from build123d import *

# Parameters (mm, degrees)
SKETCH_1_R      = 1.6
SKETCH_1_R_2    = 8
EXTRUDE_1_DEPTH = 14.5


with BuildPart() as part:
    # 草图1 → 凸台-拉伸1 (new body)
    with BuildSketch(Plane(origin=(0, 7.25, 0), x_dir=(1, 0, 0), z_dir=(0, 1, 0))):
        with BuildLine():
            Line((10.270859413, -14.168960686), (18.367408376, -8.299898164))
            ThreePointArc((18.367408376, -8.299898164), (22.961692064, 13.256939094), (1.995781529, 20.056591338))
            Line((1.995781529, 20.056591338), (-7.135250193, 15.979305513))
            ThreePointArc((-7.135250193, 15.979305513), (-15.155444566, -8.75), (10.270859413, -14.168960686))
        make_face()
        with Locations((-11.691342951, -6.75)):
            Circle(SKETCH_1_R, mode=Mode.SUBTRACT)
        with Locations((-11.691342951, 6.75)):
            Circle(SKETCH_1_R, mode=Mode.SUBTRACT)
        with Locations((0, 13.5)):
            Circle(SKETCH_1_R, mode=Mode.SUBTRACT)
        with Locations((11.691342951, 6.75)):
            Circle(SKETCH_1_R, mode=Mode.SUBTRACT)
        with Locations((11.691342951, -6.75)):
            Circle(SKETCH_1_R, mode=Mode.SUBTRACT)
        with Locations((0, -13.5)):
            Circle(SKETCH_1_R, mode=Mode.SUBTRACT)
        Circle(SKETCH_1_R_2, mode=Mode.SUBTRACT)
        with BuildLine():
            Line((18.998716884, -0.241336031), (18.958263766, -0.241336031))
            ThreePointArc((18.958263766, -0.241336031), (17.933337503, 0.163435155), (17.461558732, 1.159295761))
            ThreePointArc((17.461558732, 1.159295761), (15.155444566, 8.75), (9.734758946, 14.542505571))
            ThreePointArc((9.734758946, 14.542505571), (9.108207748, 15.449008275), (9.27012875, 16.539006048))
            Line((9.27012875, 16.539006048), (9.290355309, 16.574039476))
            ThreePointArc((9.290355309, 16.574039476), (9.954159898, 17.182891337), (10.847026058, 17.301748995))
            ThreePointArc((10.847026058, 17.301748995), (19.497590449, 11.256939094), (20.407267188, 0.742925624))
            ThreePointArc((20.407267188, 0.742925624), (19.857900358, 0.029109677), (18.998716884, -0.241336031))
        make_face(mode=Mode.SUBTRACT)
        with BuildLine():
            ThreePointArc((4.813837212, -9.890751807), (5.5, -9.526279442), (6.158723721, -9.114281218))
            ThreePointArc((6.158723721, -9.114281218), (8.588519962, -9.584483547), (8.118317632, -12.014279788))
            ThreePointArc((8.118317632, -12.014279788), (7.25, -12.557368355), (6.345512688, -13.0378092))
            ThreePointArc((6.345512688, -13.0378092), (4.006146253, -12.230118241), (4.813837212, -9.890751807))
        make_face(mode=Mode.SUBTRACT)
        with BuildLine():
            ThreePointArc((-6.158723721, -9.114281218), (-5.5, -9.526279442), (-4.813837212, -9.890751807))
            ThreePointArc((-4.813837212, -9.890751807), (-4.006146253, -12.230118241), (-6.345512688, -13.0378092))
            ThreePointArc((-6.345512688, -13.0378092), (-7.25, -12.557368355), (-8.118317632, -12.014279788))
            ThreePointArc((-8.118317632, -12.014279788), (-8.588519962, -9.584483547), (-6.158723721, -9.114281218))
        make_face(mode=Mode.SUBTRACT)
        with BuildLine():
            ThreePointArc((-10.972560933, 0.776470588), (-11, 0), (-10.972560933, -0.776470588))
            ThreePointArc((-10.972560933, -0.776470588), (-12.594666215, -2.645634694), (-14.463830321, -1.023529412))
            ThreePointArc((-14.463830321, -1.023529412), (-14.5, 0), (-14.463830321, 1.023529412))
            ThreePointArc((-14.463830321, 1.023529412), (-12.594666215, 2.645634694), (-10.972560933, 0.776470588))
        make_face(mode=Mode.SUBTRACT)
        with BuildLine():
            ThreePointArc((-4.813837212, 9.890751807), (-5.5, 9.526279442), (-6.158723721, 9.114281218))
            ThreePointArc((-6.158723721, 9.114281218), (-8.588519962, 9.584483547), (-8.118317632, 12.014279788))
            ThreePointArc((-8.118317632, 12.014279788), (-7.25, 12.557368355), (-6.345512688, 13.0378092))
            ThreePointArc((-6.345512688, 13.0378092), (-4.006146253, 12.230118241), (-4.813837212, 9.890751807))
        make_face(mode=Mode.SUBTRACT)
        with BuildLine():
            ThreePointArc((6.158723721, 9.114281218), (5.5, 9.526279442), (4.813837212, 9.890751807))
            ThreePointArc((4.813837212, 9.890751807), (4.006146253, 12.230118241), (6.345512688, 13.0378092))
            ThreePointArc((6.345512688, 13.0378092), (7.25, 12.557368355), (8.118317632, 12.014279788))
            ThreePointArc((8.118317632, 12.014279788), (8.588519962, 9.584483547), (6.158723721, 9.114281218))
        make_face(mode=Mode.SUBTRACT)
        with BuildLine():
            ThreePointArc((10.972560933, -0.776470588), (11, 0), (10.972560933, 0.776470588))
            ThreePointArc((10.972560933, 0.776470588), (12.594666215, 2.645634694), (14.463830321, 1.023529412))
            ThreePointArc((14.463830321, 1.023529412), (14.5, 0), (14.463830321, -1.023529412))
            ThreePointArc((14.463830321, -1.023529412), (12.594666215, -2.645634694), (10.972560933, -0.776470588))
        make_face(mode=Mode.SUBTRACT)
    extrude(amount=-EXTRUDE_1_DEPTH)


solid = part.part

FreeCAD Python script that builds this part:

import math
import FreeCAD as App
import Part
import Sketcher
from FreeCAD import Vector
Q = App.Units.Quantity

doc = App.newDocument("Part")
params = doc.addObject("Spreadsheet::Sheet", "Params")
for row, (alias, value) in enumerate([
    ("sketch1_diameter", "16 mm"),
    ("sketch1_radius", "11 mm"),
    ("sketch1_diameter2", "3.2 mm"),
    ("sketch1_radius2", "17.5 mm"),
    ("sketch1_radius3", "14.5 mm"),
    ("pad1_length", "14.5 mm"),
], start=1):
    params.set(f"A{row}", alias)
    params.set(f"B{row}", "=" + value)
    params.setAlias(f"B{row}", alias)

body = doc.addObject("PartDesign::Body", "Body")

sketch1 = body.newObject("Sketcher::SketchObject", "Sketch")
sketch1.AttachmentSupport = (doc.getObject("XZ_Plane"), [""])
sketch1.MapMode = "FlatFace"
sketch1.AttachmentOffset = App.Placement(Vector(0, 0, -7.25), App.Rotation())
sketch1.addGeometry(Part.LineSegment(Vector(10.271, 14.169, 0), Vector(18.367, 8.3, 0)), False)
sketch1.addGeometry(Part.ArcOfCircle(Part.Circle(Vector(8.707, -5.027, 0), Vector(0, 0, 1), 16.46), math.radians(-114), math.radians(54)), False)
sketch1.addGeometry(Part.LineSegment(Vector(1.996, -20.057, 0), Vector(-7.135, -15.979, 0)), False)
sketch1.addGeometry(Part.ArcOfCircle(Part.Circle(Vector(0, 0, 0), Vector(0, 0, 1), 17.5), math.radians(54), math.radians(246)), False)
sketch1.addGeometry(Part.ArcOfCircle(Part.Circle(Vector(-7.139, 10.564, 0), Vector(0, 0, 1), 1.75), math.radians(124), math.radians(304)), False)
sketch1.addGeometry(Part.ArcOfCircle(Part.Circle(Vector(0, 0, 0), Vector(0, 0, 1), 11), math.radians(115.95), math.radians(124.05)), False)
sketch1.addGeometry(Part.ArcOfCircle(Part.Circle(Vector(-5.58, 11.464, 0), Vector(0, 0, 1), 1.75), math.radians(-64), math.radians(116)), False)
sketch1.addGeometry(Part.ArcOfCircle(Part.Circle(Vector(0, 0, 0), Vector(0, 0, 1), 14.5), math.radians(115.95), math.radians(124.05)), False)
sketch1.addGeometry(Part.Circle(Vector(0, 13.5, 0), Vector(0, 0, 1), 1.6), False)
sketch1.addGeometry(Part.Circle(Vector(-11.691, 6.75, 0), Vector(0, 0, 1), 1.6), False)
sketch1.addGeometry(Part.ArcOfCircle(Part.Circle(Vector(-12.718, -0.9, 0), Vector(0, 0, 1), 1.75), math.radians(-176), math.radians(4)), False)
sketch1.addGeometry(Part.ArcOfCircle(Part.Circle(Vector(0, 0, 0), Vector(0, 0, 1), 11), math.radians(175.95), math.radians(184.05)), False)
sketch1.addGeometry(Part.ArcOfCircle(Part.Circle(Vector(-12.718, 0.9, 0), Vector(0, 0, 1), 1.75), math.radians(-4), math.radians(176)), False)
sketch1.addGeometry(Part.ArcOfCircle(Part.Circle(Vector(0, 0, 0), Vector(0, 0, 1), 14.5), math.radians(175.95), math.radians(184.05)), False)
sketch1.addGeometry(Part.Circle(Vector(0, 0, 0), Vector(0, 0, 1), 8), False)
sketch1.addGeometry(Part.ArcOfCircle(Part.Circle(Vector(5.58, 11.464, 0), Vector(0, 0, 1), 1.75), math.radians(64), math.radians(244)), False)
sketch1.addGeometry(Part.ArcOfCircle(Part.Circle(Vector(0, 0, 0), Vector(0, 0, 1), 11), math.radians(55.95), math.radians(64.05)), False)
sketch1.addGeometry(Part.ArcOfCircle(Part.Circle(Vector(7.139, 10.564, 0), Vector(0, 0, 1), 1.75), math.radians(-124), math.radians(56)), False)
sketch1.addGeometry(Part.ArcOfCircle(Part.Circle(Vector(0, 0, 0), Vector(0, 0, 1), 14.5), math.radians(55.95), math.radians(64.05)), False)
sketch1.addGeometry(Part.Circle(Vector(11.691, 6.75, 0), Vector(0, 0, 1), 1.6), False)
sketch1.addGeometry(Part.ArcOfCircle(Part.Circle(Vector(12.718, 0.9, 0), Vector(0, 0, 1), 1.75), math.radians(4), math.radians(184)), False)
sketch1.addGeometry(Part.ArcOfCircle(Part.Circle(Vector(0, 0, 0), Vector(0, 0, 1), 11), math.radians(-4.05), math.radians(4.05)), False)
sketch1.addGeometry(Part.ArcOfCircle(Part.Circle(Vector(12.718, -0.9, 0), Vector(0, 0, 1), 1.75), math.radians(176), math.radians(356)), False)
sketch1.addGeometry(Part.ArcOfCircle(Part.Circle(Vector(0, 0, 0), Vector(0, 0, 1), 14.5), math.radians(-4.05), math.radians(4.05)), False)
sketch1.addGeometry(Part.Circle(Vector(-11.691, -6.75, 0), Vector(0, 0, 1), 1.6), False)
sketch1.addGeometry(Part.ArcOfCircle(Part.Circle(Vector(-5.58, -11.464, 0), Vector(0, 0, 1), 1.75), math.radians(-116), math.radians(64)), False)
sketch1.addGeometry(Part.ArcOfCircle(Part.Circle(Vector(0, 0, 0), Vector(0, 0, 1), 11), math.radians(-124.05), math.radians(-115.95)), False)
sketch1.addGeometry(Part.ArcOfCircle(Part.Circle(Vector(-7.139, -10.564, 0), Vector(0, 0, 1), 1.75), math.radians(56), math.radians(236)), False)
sketch1.addGeometry(Part.ArcOfCircle(Part.Circle(Vector(0, 0, 0), Vector(0, 0, 1), 14.5), math.radians(-124.05), math.radians(-115.95)), False)
sketch1.addGeometry(Part.Circle(Vector(0, -13.5, 0), Vector(0, 0, 1), 1.6), False)
sketch1.addGeometry(Part.Circle(Vector(11.691, -6.75, 0), Vector(0, 0, 1), 1.6), False)
sketch1.addGeometry(Part.ArcOfCircle(Part.Circle(Vector(18.999, -1.259, 0), Vector(0, 0, 1), 1.5), math.radians(20), math.radians(90)), False)
sketch1.addGeometry(Part.LineSegment(Vector(18.999, 0.241, 0), Vector(18.958, 0.241, 0)), False)
sketch1.addGeometry(Part.ArcOfCircle(Part.Circle(Vector(18.958, -1.259, 0), Vector(0, 0, 1), 1.5), math.radians(90), math.radians(176)), False)
sketch1.addGeometry(Part.ArcOfCircle(Part.Circle(Vector(0, 0, 0), Vector(0, 0, 1), 17.5), math.radians(-56), math.radians(-4)), False)
sketch1.addGeometry(Part.ArcOfCircle(Part.Circle(Vector(10.569, -15.789, 0), Vector(0, 0, 1), 1.5), math.radians(124), math.radians(210)), False)
sketch1.addGeometry(Part.LineSegment(Vector(9.27, -16.539, 0), Vector(9.29, -16.574, 0)), False)
sketch1.addGeometry(Part.ArcOfCircle(Part.Circle(Vector(10.589, -15.824, 0), Vector(0, 0, 1), 1.5), math.radians(-150), math.radians(-80)), False)
sketch1.addGeometry(Part.ArcOfCircle(Part.Circle(Vector(8.707, -5.027, 0), Vector(0, 0, 1), 12.46), math.radians(-80), math.radians(20)), False)
sketch1.addGeometry(Part.ArcOfCircle(Part.Circle(Vector(7.139, -10.564, 0), Vector(0, 0, 1), 1.75), math.radians(-56), math.radians(124)), False)
sketch1.addGeometry(Part.ArcOfCircle(Part.Circle(Vector(0, 0, 0), Vector(0, 0, 1), 11), math.radians(-64.05), math.radians(-55.95)), False)
sketch1.addGeometry(Part.ArcOfCircle(Part.Circle(Vector(5.58, -11.464, 0), Vector(0, 0, 1), 1.75), math.radians(116), math.radians(296)), False)
sketch1.addGeometry(Part.ArcOfCircle(Part.Circle(Vector(0, 0, 0), Vector(0, 0, 1), 14.5), math.radians(-64.05), math.radians(-55.95)), False)
sketch1.addConstraint(Sketcher.Constraint("Tangent", 0, 2, 1, 2))
sketch1.addConstraint(Sketcher.Constraint("Tangent", 1, 1, 2, 1))
sketch1.addConstraint(Sketcher.Constraint("Tangent", 2, 2, 3, 2))
sketch1.addConstraint(Sketcher.Constraint("Tangent", 3, 1, 0, 1))
sketch1.addConstraint(Sketcher.Constraint("Tangent", 4, 2, 5, 2))
sketch1.addConstraint(Sketcher.Constraint("Tangent", 5, 1, 6, 1))
sketch1.addConstraint(Sketcher.Constraint("Tangent", 6, 2, 7, 1))
sketch1.addConstraint(Sketcher.Constraint("Tangent", 7, 2, 4, 1))
sketch1.addConstraint(Sketcher.Constraint("Tangent", 10, 2, 11, 2))
sketch1.addConstraint(Sketcher.Constraint("Tangent", 11, 1, 12, 1))
sketch1.addConstraint(Sketcher.Constraint("Tangent", 12, 2, 13, 1))
sketch1.addConstraint(Sketcher.Constraint("Tangent", 13, 2, 10, 1))
sketch1.addConstraint(Sketcher.Constraint("Tangent", 15, 2, 16, 2))
sketch1.addConstraint(Sketcher.Constraint("Tangent", 16, 1, 17, 1))
sketch1.addConstraint(Sketcher.Constraint("Tangent", 17, 2, 18, 1))
sketch1.addConstraint(Sketcher.Constraint("Tangent", 18, 2, 15, 1))
sketch1.addConstraint(Sketcher.Constraint("Tangent", 20, 2, 21, 2))
sketch1.addConstraint(Sketcher.Constraint("Tangent", 21, 1, 22, 1))
sketch1.addConstraint(Sketcher.Constraint("Tangent", 22, 2, 23, 1))
sketch1.addConstraint(Sketcher.Constraint("Tangent", 23, 2, 20, 1))
sketch1.addConstraint(Sketcher.Constraint("Tangent", 25, 2, 26, 2))
sketch1.addConstraint(Sketcher.Constraint("Tangent", 26, 1, 27, 1))
sketch1.addConstraint(Sketcher.Constraint("Tangent", 27, 2, 28, 1))
sketch1.addConstraint(Sketcher.Constraint("Tangent", 28, 2, 25, 1))
sketch1.addConstraint(Sketcher.Constraint("Tangent", 31, 2, 32, 1))
sketch1.addConstraint(Sketcher.Constraint("Tangent", 32, 2, 33, 1))
sketch1.addConstraint(Sketcher.Constraint("Tangent", 33, 2, 34, 2))
sketch1.addConstraint(Sketcher.Constraint("Tangent", 34, 1, 35, 1))
sketch1.addConstraint(Sketcher.Constraint("Tangent", 35, 2, 36, 1))
sketch1.addConstraint(Sketcher.Constraint("Tangent", 36, 2, 37, 1))
sketch1.addConstraint(Sketcher.Constraint("Tangent", 37, 2, 38, 1))
sketch1.addConstraint(Sketcher.Constraint("Tangent", 38, 2, 31, 1))
sketch1.addConstraint(Sketcher.Constraint("Tangent", 39, 2, 40, 2))
sketch1.addConstraint(Sketcher.Constraint("Tangent", 40, 1, 41, 1))
sketch1.addConstraint(Sketcher.Constraint("Tangent", 41, 2, 42, 1))
sketch1.addConstraint(Sketcher.Constraint("Tangent", 42, 2, 39, 1))
sketch1.addConstraint(Sketcher.Constraint("Horizontal", 32))
sketch1.addConstraint(Sketcher.Constraint("Coincident", 3, 3, -1, 1))
sketch1.addConstraint(Sketcher.Constraint("Coincident", 5, 3, -1, 1))
sketch1.addConstraint(Sketcher.Constraint("Coincident", 7, 3, -1, 1))
sketch1.addConstraint(Sketcher.Constraint("Coincident", 11, 3, -1, 1))
sketch1.addConstraint(Sketcher.Constraint("Coincident", 13, 3, -1, 1))
sketch1.addConstraint(Sketcher.Constraint("Coincident", 14, 3, -1, 1))
sketch1.addConstraint(Sketcher.Constraint("Coincident", 16, 3, -1, 1))
sketch1.addConstraint(Sketcher.Constraint("Coincident", 18, 3, -1, 1))
sketch1.addConstraint(Sketcher.Constraint("Coincident", 21, 3, -1, 1))
sketch1.addConstraint(Sketcher.Constraint("Coincident", 23, 3, -1, 1))
sketch1.addConstraint(Sketcher.Constraint("Coincident", 26, 3, -1, 1))
sketch1.addConstraint(Sketcher.Constraint("Coincident", 28, 3, -1, 1))
sketch1.addConstraint(Sketcher.Constraint("Coincident", 34, 3, -1, 1))
sketch1.addConstraint(Sketcher.Constraint("Coincident", 40, 3, -1, 1))
sketch1.addConstraint(Sketcher.Constraint("Coincident", 42, 3, -1, 1))
sketch1.addConstraint(Sketcher.Constraint("Coincident", 38, 3, 1, 3))
sketch1.addConstraint(Sketcher.Constraint("Equal", 8, 9))
sketch1.addConstraint(Sketcher.Constraint("Equal", 6, 10))
sketch1.addConstraint(Sketcher.Constraint("Equal", 5, 11))
sketch1.addConstraint(Sketcher.Constraint("Equal", 12, 15))
sketch1.addConstraint(Sketcher.Constraint("Equal", 11, 16))
sketch1.addConstraint(Sketcher.Constraint("Equal", 9, 19))
sketch1.addConstraint(Sketcher.Constraint("Equal", 17, 20))
sketch1.addConstraint(Sketcher.Constraint("Equal", 16, 21))
sketch1.addConstraint(Sketcher.Constraint("Equal", 19, 24))
sketch1.addConstraint(Sketcher.Constraint("Equal", 22, 25))
sketch1.addConstraint(Sketcher.Constraint("Equal", 21, 26))
sketch1.addConstraint(Sketcher.Constraint("Equal", 24, 29))
sketch1.addConstraint(Sketcher.Constraint("Equal", 29, 30))
sketch1.addConstraint(Sketcher.Constraint("Equal", 31, 33))
sketch1.addConstraint(Sketcher.Constraint("Equal", 3, 34))
sketch1.addConstraint(Sketcher.Constraint("Equal", 33, 35))
sketch1.addConstraint(Sketcher.Constraint("Equal", 35, 37))
sketch1.addConstraint(Sketcher.Constraint("Equal", 27, 39))
sketch1.addConstraint(Sketcher.Constraint("Equal", 26, 40))
sketch1.addConstraint(Sketcher.Constraint("Symmetric", 19, 3, 24, 3, -1, 1))
sketch1.addConstraint(Sketcher.Constraint("Symmetric", 8, 3, 29, 3, -1, 1))
sketch1.addConstraint(Sketcher.Constraint("Symmetric", 9, 3, 30, 3, -1, 1))
sketch1.addConstraint(Sketcher.Constraint("Symmetric", 9, 3, 19, 3, -2))
sketch1.addConstraint(Sketcher.Constraint("PointOnObject", 8, 3, -2))
sketch1.addConstraint(Sketcher.Constraint("Horizontal", 6, 3, 15, 3))
sketch1.addConstraint(Sketcher.Constraint("Horizontal", 4, 3, 17, 3))
sketch1.addConstraint(Sketcher.Constraint("Horizontal", 12, 3, 20, 3))
sketch1.addConstraint(Sketcher.Constraint("Horizontal", 10, 3, 22, 3))
sketch1.addConstraint(Sketcher.Constraint("Horizontal", 27, 3, 39, 3))
sketch1.addConstraint(Sketcher.Constraint("Horizontal", 25, 3, 41, 3))
sketch1.addConstraint(Sketcher.Constraint("Vertical", 10, 3, 12, 3))
sketch1.addConstraint(Sketcher.Constraint("Vertical", 6, 3, 25, 3))
sketch1.addConstraint(Sketcher.Constraint("Vertical", 4, 3, 27, 3))
sketch1.addConstraint(Sketcher.Constraint("Diameter", 14, 16.0))
sketch1.addConstraint(Sketcher.Constraint("Radius", 5, 11.0))
sketch1.addConstraint(Sketcher.Constraint("Diameter", 8, 3.2))
sketch1.addConstraint(Sketcher.Constraint("Radius", 3, 17.5))
sketch1.addConstraint(Sketcher.Constraint("Radius", 7, 14.5))
sketch1.addConstraint(Sketcher.Constraint("Radius", 31, 1.5))
sketch1.addConstraint(Sketcher.Constraint("Angle", 36, Q("-60 deg")))
sketch1.addConstraint(Sketcher.Constraint("Distance", 0, 10.0))
sketch1.addConstraint(Sketcher.Constraint("DistanceY", -1, 1, 8, 3, 13.5))
sketch1.addConstraint(Sketcher.Constraint("DistanceY", 10, 3, -1, 1, 0.9))
sketch1.addConstraint(Sketcher.Constraint("DistanceY", -1, 1, 9, 3, 6.75))
sketch1.addConstraint(Sketcher.Constraint("Radius", 1, 16.459937))
sketch1.addConstraint(Sketcher.Constraint("Radius", 38, 12.459937))
sketch1.addConstraint(Sketcher.Constraint("DistanceY", -1, 1, 0, 2, 8.299898))
sketch1.addConstraint(Sketcher.Constraint("DistanceX", 32, 2, 32, 1, 0.040453))
sketch1.addConstraint(Sketcher.Constraint("DistanceX", 4, 3, -1, 1, 7.138521))
sketch1.addConstraint(Sketcher.Constraint("DistanceY", -1, 1, 6, 3, 11.464281))
sketch1.addConstraint(Sketcher.Constraint("DistanceY", 37, 3, -1, 1, 15.824039))
sketch1.addConstraint(Sketcher.Constraint("DistanceX", 9, 3, -1, 1, 11.691343))
sketch1.setExpression("Constraints[86]", "Params.sketch1_diameter")
sketch1.setExpression("Constraints[87]", "Params.sketch1_radius")
sketch1.setExpression("Constraints[88]", "Params.sketch1_diameter2")
sketch1.setExpression("Constraints[89]", "Params.sketch1_radius2")
sketch1.setExpression("Constraints[90]", "Params.sketch1_radius3")
pad1 = body.newObject("PartDesign::Pad", "Pad")
pad1.Profile = sketch1
pad1.setExpression("Length", "Params.pad1_length")

doc.recompute()
